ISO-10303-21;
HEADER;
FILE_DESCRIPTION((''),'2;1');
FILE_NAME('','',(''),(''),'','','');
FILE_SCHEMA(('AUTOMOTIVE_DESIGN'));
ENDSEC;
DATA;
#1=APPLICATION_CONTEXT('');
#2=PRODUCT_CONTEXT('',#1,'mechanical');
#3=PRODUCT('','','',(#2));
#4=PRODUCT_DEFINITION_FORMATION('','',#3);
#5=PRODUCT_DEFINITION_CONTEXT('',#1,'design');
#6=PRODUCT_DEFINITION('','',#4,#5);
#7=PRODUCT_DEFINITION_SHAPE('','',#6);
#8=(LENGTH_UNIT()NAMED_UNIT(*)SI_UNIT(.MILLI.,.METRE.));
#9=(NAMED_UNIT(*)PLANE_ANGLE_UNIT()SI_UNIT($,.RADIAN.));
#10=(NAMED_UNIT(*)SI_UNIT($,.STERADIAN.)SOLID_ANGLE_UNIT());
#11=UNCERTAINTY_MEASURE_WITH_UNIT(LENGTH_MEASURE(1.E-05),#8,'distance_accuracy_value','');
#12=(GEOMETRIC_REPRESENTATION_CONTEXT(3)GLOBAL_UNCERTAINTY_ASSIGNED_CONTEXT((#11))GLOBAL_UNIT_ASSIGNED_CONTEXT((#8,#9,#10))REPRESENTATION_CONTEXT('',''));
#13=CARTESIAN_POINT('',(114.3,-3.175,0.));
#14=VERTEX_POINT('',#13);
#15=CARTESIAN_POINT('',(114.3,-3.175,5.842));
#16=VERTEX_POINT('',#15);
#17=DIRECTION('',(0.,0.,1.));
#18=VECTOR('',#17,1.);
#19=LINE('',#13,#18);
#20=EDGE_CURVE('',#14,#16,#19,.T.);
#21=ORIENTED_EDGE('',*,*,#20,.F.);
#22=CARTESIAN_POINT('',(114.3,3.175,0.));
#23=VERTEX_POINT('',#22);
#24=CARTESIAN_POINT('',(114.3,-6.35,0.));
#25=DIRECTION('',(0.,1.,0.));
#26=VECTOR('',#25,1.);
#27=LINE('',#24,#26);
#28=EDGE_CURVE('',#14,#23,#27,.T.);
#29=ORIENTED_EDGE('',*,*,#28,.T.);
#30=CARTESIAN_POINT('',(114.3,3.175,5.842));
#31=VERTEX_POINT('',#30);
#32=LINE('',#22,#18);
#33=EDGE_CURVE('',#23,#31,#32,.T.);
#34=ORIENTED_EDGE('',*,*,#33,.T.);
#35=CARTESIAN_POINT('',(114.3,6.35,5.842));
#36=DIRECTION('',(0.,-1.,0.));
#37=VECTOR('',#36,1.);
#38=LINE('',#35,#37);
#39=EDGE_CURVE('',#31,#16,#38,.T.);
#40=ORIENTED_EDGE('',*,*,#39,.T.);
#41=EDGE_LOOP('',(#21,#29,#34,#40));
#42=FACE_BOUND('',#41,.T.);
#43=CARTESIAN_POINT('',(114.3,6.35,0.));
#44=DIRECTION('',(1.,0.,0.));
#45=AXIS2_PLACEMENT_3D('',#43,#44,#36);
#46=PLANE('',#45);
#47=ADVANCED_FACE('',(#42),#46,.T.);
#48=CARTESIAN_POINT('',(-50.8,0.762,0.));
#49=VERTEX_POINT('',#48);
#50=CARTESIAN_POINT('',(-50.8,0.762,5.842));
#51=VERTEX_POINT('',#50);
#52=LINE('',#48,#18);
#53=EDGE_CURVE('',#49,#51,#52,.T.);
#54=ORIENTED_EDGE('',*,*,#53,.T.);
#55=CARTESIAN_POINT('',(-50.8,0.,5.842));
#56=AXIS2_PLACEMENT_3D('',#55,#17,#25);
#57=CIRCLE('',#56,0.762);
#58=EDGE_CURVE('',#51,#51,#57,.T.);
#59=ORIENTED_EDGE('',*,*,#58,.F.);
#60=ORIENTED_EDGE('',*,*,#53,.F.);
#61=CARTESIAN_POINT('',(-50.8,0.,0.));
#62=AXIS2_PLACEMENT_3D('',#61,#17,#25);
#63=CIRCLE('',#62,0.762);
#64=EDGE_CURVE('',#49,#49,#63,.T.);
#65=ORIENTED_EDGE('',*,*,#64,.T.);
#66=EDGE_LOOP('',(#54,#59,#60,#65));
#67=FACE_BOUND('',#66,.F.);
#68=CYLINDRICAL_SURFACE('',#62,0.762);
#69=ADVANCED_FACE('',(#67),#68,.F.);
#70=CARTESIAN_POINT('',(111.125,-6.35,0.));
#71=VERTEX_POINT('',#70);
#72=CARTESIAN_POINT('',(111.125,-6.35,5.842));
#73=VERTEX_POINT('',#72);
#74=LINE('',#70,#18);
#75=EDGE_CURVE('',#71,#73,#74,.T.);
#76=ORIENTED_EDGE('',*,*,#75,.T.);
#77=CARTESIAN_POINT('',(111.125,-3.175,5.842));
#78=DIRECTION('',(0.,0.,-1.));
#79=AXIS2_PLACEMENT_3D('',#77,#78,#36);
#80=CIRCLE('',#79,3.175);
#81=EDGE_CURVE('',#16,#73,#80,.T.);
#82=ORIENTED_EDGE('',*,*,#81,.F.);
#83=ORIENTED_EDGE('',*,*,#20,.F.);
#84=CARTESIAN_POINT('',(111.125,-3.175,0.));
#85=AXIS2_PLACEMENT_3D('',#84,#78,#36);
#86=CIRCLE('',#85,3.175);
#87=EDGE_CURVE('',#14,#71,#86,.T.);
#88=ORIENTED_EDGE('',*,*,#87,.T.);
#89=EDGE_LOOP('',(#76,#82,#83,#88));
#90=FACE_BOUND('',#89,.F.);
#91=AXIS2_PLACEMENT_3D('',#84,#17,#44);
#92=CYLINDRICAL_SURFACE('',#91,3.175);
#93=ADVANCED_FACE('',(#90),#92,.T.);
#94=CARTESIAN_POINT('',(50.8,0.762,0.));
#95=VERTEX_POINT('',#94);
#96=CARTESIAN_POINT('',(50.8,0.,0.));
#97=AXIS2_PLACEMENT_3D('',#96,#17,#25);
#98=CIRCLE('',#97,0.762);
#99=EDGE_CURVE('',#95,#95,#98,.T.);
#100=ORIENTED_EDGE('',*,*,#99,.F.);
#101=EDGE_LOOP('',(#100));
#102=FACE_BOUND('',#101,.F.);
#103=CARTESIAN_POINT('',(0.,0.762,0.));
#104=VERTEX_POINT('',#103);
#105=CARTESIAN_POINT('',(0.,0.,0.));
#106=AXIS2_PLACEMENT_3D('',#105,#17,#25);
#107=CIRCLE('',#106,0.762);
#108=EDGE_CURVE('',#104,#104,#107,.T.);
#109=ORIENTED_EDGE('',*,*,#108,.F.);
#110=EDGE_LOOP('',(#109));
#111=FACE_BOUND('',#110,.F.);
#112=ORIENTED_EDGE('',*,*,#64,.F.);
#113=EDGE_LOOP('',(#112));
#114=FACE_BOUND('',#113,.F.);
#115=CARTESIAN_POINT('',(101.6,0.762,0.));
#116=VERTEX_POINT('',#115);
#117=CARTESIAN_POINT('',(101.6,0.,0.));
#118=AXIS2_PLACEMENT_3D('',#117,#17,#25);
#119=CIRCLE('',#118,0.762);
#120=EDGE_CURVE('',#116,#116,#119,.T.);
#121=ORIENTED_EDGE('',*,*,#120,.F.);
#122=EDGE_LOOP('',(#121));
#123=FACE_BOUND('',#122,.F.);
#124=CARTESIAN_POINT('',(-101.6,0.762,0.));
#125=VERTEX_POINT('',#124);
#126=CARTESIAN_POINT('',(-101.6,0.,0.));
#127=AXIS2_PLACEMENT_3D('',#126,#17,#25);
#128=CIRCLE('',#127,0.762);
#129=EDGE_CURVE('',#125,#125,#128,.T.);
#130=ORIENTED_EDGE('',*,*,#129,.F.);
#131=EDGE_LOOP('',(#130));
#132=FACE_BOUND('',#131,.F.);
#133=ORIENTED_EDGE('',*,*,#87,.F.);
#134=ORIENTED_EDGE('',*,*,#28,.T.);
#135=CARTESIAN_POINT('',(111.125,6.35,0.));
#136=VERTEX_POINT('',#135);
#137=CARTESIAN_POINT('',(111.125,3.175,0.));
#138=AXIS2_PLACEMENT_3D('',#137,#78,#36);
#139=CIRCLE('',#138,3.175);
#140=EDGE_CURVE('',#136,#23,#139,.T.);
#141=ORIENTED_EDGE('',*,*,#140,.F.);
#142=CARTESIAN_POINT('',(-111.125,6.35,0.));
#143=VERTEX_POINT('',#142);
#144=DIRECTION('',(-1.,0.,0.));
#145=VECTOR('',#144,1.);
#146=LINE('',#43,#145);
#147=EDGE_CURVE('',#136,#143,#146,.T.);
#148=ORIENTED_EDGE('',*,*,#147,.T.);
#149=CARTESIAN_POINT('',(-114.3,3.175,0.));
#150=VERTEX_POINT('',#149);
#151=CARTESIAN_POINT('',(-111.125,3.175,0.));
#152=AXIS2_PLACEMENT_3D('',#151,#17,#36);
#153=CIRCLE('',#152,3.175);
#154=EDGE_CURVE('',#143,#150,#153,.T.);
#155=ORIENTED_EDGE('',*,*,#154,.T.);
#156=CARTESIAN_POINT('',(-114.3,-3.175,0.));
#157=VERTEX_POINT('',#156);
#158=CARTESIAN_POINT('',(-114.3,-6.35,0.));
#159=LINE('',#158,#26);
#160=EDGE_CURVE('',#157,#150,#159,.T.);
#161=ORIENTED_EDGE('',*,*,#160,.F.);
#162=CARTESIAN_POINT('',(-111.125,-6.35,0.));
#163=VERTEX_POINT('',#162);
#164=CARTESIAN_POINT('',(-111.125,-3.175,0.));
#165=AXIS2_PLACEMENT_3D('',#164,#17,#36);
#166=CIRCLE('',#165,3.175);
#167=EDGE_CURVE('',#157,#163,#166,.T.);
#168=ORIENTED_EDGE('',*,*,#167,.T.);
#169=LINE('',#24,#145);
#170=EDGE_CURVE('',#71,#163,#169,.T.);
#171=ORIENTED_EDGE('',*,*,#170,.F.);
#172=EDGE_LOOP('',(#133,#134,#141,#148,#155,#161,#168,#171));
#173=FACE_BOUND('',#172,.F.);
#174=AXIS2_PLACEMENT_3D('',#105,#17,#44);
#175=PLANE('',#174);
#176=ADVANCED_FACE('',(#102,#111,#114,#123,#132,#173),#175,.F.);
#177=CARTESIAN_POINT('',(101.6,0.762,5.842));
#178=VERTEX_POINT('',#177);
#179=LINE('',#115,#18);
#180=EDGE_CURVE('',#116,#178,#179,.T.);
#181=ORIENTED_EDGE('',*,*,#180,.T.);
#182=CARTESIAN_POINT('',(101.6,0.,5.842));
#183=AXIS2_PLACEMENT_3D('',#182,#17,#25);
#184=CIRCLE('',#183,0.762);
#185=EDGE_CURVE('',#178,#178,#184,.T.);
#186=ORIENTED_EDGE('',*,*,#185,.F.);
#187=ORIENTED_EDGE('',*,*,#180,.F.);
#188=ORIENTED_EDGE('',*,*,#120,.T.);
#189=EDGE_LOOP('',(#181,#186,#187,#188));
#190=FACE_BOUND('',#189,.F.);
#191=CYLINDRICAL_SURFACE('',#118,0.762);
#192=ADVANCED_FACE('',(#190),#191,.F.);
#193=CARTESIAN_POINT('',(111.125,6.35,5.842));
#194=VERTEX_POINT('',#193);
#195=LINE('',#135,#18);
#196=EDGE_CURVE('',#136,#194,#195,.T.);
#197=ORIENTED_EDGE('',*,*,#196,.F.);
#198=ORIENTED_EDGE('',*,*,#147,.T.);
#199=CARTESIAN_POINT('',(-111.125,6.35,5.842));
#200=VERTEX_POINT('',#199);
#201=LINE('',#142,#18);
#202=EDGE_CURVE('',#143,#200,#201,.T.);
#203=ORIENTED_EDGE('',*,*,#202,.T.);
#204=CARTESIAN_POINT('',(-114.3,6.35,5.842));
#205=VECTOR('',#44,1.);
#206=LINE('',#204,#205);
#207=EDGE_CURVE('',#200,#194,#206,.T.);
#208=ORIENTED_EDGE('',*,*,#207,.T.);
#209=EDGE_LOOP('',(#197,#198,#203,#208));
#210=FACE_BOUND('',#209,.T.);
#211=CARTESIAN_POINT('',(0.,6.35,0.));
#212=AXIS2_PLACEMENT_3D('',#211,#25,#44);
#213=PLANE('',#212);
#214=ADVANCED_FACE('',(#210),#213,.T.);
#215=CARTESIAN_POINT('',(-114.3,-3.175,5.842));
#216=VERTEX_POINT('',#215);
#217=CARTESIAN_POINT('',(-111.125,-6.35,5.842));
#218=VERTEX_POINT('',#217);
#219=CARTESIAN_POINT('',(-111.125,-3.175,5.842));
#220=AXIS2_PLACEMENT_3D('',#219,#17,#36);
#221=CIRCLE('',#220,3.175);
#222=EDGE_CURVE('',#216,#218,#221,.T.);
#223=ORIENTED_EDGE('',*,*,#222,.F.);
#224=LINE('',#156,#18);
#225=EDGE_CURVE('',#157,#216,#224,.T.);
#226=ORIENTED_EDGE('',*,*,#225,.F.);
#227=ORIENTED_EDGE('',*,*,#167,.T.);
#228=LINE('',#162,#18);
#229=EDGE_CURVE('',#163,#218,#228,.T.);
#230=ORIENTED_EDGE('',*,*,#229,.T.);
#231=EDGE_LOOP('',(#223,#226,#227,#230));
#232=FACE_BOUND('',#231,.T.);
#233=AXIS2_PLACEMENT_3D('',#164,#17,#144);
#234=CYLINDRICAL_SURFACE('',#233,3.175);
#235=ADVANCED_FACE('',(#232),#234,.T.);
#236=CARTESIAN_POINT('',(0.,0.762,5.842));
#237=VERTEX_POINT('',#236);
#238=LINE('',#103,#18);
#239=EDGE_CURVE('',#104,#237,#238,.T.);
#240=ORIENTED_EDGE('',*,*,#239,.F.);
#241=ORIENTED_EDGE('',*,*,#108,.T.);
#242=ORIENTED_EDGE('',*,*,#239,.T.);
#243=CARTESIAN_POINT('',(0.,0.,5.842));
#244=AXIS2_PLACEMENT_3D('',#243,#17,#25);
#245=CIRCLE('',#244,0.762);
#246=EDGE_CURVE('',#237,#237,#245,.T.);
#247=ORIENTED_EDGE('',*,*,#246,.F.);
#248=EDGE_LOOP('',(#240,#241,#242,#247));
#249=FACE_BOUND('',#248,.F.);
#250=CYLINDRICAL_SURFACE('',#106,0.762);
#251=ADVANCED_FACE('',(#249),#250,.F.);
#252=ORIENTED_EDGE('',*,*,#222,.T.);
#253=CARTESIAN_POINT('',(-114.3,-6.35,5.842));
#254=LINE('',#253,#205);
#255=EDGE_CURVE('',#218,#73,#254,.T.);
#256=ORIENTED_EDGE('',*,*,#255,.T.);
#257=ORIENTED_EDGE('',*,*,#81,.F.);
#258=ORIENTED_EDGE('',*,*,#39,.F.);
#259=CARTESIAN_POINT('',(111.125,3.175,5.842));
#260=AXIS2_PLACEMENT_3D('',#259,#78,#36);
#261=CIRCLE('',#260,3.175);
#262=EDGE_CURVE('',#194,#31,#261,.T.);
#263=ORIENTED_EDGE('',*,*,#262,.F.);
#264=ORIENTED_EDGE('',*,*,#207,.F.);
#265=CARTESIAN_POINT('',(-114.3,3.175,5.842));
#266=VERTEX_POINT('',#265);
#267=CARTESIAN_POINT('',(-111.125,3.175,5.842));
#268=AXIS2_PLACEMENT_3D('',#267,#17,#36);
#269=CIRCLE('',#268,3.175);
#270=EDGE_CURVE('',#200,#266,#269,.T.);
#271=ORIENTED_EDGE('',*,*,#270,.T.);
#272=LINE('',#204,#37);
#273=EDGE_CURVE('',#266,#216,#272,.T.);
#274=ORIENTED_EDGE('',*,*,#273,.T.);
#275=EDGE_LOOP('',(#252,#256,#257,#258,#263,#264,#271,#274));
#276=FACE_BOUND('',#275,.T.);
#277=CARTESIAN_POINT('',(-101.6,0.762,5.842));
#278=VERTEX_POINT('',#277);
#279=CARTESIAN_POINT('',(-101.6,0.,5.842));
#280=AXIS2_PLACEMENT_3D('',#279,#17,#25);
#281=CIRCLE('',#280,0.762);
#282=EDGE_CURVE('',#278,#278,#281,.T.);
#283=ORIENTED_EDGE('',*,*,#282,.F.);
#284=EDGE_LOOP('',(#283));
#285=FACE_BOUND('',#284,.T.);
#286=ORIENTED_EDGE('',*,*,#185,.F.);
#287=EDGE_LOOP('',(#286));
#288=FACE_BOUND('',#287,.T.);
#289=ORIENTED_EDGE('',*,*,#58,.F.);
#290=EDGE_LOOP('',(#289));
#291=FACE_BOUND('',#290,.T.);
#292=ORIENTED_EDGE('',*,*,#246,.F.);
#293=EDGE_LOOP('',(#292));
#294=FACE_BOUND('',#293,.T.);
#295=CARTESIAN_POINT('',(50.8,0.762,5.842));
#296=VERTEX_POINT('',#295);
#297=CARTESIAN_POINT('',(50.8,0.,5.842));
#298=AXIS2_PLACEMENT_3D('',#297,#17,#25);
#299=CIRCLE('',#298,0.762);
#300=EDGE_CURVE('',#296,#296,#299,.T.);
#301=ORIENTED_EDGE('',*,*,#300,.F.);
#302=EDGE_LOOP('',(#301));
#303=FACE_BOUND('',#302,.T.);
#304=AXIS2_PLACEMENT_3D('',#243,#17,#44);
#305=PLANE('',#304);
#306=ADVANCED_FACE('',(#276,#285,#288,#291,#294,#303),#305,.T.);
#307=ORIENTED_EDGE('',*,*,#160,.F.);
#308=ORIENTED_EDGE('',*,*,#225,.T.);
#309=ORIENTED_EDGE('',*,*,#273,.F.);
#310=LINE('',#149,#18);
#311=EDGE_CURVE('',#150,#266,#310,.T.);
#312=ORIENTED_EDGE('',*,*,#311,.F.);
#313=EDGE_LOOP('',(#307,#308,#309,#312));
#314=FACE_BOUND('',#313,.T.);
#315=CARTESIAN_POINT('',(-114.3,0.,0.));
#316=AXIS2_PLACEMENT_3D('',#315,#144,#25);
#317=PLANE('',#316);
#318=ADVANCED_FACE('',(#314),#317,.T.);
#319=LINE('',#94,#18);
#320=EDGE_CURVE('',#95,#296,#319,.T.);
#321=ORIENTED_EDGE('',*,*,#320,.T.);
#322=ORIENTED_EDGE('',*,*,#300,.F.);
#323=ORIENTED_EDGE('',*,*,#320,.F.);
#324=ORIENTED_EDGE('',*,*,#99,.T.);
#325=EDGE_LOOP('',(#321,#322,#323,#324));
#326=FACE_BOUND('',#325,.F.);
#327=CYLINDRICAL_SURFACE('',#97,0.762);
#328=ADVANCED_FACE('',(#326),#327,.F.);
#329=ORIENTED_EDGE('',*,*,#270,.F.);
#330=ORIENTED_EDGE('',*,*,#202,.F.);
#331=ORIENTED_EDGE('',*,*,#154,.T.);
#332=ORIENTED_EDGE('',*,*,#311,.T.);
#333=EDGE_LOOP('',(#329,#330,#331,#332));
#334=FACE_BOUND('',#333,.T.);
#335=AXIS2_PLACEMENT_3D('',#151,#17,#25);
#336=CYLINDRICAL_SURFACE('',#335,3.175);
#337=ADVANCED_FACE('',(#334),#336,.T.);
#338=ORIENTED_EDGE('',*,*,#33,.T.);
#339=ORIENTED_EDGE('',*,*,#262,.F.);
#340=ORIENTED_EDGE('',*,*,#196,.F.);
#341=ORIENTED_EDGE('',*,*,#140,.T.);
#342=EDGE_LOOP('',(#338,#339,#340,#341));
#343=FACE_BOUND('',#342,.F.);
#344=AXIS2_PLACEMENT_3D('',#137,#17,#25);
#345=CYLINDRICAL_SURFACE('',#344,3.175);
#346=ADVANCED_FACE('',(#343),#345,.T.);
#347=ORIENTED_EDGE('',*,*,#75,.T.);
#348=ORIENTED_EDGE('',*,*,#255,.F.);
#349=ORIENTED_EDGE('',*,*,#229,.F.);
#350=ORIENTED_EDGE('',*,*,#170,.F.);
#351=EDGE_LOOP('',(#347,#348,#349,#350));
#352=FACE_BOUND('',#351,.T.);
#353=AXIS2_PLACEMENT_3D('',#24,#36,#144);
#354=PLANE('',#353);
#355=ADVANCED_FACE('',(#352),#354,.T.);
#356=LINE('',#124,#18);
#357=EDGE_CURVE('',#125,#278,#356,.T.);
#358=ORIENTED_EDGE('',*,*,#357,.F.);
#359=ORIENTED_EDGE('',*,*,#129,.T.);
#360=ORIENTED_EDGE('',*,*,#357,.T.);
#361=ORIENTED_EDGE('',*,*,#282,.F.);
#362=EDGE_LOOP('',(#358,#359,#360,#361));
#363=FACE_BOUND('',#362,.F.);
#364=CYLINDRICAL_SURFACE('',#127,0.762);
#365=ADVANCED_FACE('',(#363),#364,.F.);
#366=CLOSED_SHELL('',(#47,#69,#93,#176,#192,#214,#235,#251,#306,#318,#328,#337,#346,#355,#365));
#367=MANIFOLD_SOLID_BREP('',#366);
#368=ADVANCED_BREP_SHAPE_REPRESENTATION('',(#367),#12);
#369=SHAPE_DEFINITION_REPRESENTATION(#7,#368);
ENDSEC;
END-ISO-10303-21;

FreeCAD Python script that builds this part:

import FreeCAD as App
import Part
import Sketcher
from FreeCAD import Vector
Q = App.Units.Quantity


def edges_at(feature, points):
    """Names of the edges that pass closest to the given points."""
    edges = feature.Shape.Edges
    near = lambda p: min(range(len(edges)), key=lambda i: edges[i].distToShape(Part.Vertex(*p))[0])
    return sorted({f"Edge{near(p) + 1}" for p in points})


def add_polygon(sketch, points):
    """Adds a closed chain of lines whose ends are joined by coincident constraints."""
    first, n = sketch.GeometryCount, len(points)
    for a, b in zip(points, points[1:] + points[:1]):
        sketch.addGeometry(Part.LineSegment(App.Vector(*a, 0), App.Vector(*b, 0)), False)
    for i in range(n):
        sketch.addConstraint(Sketcher.Constraint("Coincident", first + i, 2, first + (i + 1) % n, 1))

doc = App.newDocument("Part")
body = doc.addObject("PartDesign::Body", "Body")

sketch1 = doc.addObject("Sketcher::SketchObject", "Sketch")
body.addObject(sketch1)
sketch1.AttachmentSupport = (doc.XY_Plane, [""])
sketch1.MapMode = "FlatFace"
add_polygon(sketch1, [(114, 6), (-114, 6), (-114, -6), (114, -6)])
sketch1.addConstraint([
    Sketcher.Constraint("Horizontal", 0),
    Sketcher.Constraint("Vertical", 1),
    Sketcher.Constraint("Horizontal", 2),
    Sketcher.Constraint("Vertical", 3),
    Sketcher.Constraint("Symmetric", 0, 2, 2, 2, -1, 1),
    Sketcher.Constraint("DistanceX", 0, 2, 0, 1, Q("9 in")),
    Sketcher.Constraint("DistanceY", 1, 2, 1, 1, Q("0.5 in")),
])
pad1 = doc.addObject("PartDesign::Pad", "Pad")
body.addObject(pad1)
pad1.Profile = sketch1
pad1.Length = Q("0.23 in")

sketch2 = doc.addObject("Sketcher::SketchObject", "Sketch001")
body.addObject(sketch2)
sketch2.AttachmentSupport = (doc.XY_Plane, [""])
sketch2.MapMode = "FlatFace"
sketch2.addGeometry([
    Part.Circle(Vector(-101.6, 0, 0), Vector(0, 0, 1), 0.8),
    Part.Circle(Vector(101.6, 0, 0), Vector(0, 0, 1), 0.8),
    Part.Circle(Vector(0, 0, 0), Vector(0, 0, 1), 0.8),
    Part.Circle(Vector(50.8, 0, 0), Vector(0, 0, 1), 0.8),
    Part.Circle(Vector(-50.8, 0, 0), Vector(0, 0, 1), 0.8),
], False)
sketch2.addConstraint([
    Sketcher.Constraint("Coincident", 2, 3, -1, 1),
    Sketcher.Constraint("Equal", 0, 1),
    Sketcher.Constraint("Equal", 1, 2),
    Sketcher.Constraint("Equal", 2, 3),
    Sketcher.Constraint("Equal", 3, 4),
    Sketcher.Constraint("Symmetric", 0, 3, 1, 3, -1, 1),
    Sketcher.Constraint("Symmetric", 3, 3, 4, 3, -1, 1),
    Sketcher.Constraint("PointOnObject", 0, 3, -1),
    Sketcher.Constraint("PointOnObject", 3, 3, -1),
    Sketcher.Constraint("Diameter", 0, Q("0.06 in")),
    Sketcher.Constraint("DistanceX", 0, 3, -1, 1, Q("4 in")),
    Sketcher.Constraint("DistanceX", -1, 1, 3, 3, Q("2 in")),
])
doc.recompute()
hole = doc.addObject("PartDesign::Hole", "Hole")
body.addObject(hole)
hole.Profile = sketch2
hole.ThreadType = "None"
hole.Diameter = Q("0.06 in")
hole.DepthType = "ThroughAll"
hole.Reversed = True
doc.recompute()

fillet = doc.addObject("PartDesign::Fillet", "Fillet")
body.addObject(fillet)
fillet.Base = (hole, edges_at(hole, [
    (114.3, -6.35, 2.921),
    (114.3, 6.35, 2.921),
    (-114.3, -6.35, 2.921),
    (-114.3, 6.35, 2.921),
]))
fillet.Radius = Q("0.125 in")

doc.recompute()
